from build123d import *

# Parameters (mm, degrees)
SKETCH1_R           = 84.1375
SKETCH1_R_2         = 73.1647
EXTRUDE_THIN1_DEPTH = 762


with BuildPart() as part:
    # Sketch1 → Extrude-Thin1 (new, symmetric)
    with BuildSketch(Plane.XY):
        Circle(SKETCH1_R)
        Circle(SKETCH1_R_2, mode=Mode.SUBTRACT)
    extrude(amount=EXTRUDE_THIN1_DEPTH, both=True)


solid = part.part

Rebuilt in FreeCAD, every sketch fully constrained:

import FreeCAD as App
import Part
import Sketcher
Q = App.Units.Quantity

doc = App.newDocument("Part")
body = doc.addObject("PartDesign::Body", "Body")

sketch1 = body.newObject("Sketcher::SketchObject", "Sketch")
sketch1.AttachmentSupport = (doc.getObject("XY_Plane"), [""])
sketch1.MapMode = "FlatFace"
sketch1.addGeometry([
    Part.Circle(App.Vector(0, 0, 0), App.Vector(0, 0, 1), 84.1375),
    Part.Circle(App.Vector(0, 0, 0), App.Vector(0, 0, 1), 73.1647),
], False)
sketch1.addConstraint([
    Sketcher.Constraint("Coincident", 0, 3, -1, 1),
    Sketcher.Constraint("Coincident", 1, 3, -1, 1),
    Sketcher.Constraint("Diameter", 0, Q("6.625 in")),
    Sketcher.Constraint("Diameter", 1, Q("5.761 in")),
])
pad1 = body.newObject("PartDesign::Pad", "Pad")
pad1.Profile = sketch1
pad1.Length = Q("60 in")
pad1.Midplane = True

doc.recompute()
